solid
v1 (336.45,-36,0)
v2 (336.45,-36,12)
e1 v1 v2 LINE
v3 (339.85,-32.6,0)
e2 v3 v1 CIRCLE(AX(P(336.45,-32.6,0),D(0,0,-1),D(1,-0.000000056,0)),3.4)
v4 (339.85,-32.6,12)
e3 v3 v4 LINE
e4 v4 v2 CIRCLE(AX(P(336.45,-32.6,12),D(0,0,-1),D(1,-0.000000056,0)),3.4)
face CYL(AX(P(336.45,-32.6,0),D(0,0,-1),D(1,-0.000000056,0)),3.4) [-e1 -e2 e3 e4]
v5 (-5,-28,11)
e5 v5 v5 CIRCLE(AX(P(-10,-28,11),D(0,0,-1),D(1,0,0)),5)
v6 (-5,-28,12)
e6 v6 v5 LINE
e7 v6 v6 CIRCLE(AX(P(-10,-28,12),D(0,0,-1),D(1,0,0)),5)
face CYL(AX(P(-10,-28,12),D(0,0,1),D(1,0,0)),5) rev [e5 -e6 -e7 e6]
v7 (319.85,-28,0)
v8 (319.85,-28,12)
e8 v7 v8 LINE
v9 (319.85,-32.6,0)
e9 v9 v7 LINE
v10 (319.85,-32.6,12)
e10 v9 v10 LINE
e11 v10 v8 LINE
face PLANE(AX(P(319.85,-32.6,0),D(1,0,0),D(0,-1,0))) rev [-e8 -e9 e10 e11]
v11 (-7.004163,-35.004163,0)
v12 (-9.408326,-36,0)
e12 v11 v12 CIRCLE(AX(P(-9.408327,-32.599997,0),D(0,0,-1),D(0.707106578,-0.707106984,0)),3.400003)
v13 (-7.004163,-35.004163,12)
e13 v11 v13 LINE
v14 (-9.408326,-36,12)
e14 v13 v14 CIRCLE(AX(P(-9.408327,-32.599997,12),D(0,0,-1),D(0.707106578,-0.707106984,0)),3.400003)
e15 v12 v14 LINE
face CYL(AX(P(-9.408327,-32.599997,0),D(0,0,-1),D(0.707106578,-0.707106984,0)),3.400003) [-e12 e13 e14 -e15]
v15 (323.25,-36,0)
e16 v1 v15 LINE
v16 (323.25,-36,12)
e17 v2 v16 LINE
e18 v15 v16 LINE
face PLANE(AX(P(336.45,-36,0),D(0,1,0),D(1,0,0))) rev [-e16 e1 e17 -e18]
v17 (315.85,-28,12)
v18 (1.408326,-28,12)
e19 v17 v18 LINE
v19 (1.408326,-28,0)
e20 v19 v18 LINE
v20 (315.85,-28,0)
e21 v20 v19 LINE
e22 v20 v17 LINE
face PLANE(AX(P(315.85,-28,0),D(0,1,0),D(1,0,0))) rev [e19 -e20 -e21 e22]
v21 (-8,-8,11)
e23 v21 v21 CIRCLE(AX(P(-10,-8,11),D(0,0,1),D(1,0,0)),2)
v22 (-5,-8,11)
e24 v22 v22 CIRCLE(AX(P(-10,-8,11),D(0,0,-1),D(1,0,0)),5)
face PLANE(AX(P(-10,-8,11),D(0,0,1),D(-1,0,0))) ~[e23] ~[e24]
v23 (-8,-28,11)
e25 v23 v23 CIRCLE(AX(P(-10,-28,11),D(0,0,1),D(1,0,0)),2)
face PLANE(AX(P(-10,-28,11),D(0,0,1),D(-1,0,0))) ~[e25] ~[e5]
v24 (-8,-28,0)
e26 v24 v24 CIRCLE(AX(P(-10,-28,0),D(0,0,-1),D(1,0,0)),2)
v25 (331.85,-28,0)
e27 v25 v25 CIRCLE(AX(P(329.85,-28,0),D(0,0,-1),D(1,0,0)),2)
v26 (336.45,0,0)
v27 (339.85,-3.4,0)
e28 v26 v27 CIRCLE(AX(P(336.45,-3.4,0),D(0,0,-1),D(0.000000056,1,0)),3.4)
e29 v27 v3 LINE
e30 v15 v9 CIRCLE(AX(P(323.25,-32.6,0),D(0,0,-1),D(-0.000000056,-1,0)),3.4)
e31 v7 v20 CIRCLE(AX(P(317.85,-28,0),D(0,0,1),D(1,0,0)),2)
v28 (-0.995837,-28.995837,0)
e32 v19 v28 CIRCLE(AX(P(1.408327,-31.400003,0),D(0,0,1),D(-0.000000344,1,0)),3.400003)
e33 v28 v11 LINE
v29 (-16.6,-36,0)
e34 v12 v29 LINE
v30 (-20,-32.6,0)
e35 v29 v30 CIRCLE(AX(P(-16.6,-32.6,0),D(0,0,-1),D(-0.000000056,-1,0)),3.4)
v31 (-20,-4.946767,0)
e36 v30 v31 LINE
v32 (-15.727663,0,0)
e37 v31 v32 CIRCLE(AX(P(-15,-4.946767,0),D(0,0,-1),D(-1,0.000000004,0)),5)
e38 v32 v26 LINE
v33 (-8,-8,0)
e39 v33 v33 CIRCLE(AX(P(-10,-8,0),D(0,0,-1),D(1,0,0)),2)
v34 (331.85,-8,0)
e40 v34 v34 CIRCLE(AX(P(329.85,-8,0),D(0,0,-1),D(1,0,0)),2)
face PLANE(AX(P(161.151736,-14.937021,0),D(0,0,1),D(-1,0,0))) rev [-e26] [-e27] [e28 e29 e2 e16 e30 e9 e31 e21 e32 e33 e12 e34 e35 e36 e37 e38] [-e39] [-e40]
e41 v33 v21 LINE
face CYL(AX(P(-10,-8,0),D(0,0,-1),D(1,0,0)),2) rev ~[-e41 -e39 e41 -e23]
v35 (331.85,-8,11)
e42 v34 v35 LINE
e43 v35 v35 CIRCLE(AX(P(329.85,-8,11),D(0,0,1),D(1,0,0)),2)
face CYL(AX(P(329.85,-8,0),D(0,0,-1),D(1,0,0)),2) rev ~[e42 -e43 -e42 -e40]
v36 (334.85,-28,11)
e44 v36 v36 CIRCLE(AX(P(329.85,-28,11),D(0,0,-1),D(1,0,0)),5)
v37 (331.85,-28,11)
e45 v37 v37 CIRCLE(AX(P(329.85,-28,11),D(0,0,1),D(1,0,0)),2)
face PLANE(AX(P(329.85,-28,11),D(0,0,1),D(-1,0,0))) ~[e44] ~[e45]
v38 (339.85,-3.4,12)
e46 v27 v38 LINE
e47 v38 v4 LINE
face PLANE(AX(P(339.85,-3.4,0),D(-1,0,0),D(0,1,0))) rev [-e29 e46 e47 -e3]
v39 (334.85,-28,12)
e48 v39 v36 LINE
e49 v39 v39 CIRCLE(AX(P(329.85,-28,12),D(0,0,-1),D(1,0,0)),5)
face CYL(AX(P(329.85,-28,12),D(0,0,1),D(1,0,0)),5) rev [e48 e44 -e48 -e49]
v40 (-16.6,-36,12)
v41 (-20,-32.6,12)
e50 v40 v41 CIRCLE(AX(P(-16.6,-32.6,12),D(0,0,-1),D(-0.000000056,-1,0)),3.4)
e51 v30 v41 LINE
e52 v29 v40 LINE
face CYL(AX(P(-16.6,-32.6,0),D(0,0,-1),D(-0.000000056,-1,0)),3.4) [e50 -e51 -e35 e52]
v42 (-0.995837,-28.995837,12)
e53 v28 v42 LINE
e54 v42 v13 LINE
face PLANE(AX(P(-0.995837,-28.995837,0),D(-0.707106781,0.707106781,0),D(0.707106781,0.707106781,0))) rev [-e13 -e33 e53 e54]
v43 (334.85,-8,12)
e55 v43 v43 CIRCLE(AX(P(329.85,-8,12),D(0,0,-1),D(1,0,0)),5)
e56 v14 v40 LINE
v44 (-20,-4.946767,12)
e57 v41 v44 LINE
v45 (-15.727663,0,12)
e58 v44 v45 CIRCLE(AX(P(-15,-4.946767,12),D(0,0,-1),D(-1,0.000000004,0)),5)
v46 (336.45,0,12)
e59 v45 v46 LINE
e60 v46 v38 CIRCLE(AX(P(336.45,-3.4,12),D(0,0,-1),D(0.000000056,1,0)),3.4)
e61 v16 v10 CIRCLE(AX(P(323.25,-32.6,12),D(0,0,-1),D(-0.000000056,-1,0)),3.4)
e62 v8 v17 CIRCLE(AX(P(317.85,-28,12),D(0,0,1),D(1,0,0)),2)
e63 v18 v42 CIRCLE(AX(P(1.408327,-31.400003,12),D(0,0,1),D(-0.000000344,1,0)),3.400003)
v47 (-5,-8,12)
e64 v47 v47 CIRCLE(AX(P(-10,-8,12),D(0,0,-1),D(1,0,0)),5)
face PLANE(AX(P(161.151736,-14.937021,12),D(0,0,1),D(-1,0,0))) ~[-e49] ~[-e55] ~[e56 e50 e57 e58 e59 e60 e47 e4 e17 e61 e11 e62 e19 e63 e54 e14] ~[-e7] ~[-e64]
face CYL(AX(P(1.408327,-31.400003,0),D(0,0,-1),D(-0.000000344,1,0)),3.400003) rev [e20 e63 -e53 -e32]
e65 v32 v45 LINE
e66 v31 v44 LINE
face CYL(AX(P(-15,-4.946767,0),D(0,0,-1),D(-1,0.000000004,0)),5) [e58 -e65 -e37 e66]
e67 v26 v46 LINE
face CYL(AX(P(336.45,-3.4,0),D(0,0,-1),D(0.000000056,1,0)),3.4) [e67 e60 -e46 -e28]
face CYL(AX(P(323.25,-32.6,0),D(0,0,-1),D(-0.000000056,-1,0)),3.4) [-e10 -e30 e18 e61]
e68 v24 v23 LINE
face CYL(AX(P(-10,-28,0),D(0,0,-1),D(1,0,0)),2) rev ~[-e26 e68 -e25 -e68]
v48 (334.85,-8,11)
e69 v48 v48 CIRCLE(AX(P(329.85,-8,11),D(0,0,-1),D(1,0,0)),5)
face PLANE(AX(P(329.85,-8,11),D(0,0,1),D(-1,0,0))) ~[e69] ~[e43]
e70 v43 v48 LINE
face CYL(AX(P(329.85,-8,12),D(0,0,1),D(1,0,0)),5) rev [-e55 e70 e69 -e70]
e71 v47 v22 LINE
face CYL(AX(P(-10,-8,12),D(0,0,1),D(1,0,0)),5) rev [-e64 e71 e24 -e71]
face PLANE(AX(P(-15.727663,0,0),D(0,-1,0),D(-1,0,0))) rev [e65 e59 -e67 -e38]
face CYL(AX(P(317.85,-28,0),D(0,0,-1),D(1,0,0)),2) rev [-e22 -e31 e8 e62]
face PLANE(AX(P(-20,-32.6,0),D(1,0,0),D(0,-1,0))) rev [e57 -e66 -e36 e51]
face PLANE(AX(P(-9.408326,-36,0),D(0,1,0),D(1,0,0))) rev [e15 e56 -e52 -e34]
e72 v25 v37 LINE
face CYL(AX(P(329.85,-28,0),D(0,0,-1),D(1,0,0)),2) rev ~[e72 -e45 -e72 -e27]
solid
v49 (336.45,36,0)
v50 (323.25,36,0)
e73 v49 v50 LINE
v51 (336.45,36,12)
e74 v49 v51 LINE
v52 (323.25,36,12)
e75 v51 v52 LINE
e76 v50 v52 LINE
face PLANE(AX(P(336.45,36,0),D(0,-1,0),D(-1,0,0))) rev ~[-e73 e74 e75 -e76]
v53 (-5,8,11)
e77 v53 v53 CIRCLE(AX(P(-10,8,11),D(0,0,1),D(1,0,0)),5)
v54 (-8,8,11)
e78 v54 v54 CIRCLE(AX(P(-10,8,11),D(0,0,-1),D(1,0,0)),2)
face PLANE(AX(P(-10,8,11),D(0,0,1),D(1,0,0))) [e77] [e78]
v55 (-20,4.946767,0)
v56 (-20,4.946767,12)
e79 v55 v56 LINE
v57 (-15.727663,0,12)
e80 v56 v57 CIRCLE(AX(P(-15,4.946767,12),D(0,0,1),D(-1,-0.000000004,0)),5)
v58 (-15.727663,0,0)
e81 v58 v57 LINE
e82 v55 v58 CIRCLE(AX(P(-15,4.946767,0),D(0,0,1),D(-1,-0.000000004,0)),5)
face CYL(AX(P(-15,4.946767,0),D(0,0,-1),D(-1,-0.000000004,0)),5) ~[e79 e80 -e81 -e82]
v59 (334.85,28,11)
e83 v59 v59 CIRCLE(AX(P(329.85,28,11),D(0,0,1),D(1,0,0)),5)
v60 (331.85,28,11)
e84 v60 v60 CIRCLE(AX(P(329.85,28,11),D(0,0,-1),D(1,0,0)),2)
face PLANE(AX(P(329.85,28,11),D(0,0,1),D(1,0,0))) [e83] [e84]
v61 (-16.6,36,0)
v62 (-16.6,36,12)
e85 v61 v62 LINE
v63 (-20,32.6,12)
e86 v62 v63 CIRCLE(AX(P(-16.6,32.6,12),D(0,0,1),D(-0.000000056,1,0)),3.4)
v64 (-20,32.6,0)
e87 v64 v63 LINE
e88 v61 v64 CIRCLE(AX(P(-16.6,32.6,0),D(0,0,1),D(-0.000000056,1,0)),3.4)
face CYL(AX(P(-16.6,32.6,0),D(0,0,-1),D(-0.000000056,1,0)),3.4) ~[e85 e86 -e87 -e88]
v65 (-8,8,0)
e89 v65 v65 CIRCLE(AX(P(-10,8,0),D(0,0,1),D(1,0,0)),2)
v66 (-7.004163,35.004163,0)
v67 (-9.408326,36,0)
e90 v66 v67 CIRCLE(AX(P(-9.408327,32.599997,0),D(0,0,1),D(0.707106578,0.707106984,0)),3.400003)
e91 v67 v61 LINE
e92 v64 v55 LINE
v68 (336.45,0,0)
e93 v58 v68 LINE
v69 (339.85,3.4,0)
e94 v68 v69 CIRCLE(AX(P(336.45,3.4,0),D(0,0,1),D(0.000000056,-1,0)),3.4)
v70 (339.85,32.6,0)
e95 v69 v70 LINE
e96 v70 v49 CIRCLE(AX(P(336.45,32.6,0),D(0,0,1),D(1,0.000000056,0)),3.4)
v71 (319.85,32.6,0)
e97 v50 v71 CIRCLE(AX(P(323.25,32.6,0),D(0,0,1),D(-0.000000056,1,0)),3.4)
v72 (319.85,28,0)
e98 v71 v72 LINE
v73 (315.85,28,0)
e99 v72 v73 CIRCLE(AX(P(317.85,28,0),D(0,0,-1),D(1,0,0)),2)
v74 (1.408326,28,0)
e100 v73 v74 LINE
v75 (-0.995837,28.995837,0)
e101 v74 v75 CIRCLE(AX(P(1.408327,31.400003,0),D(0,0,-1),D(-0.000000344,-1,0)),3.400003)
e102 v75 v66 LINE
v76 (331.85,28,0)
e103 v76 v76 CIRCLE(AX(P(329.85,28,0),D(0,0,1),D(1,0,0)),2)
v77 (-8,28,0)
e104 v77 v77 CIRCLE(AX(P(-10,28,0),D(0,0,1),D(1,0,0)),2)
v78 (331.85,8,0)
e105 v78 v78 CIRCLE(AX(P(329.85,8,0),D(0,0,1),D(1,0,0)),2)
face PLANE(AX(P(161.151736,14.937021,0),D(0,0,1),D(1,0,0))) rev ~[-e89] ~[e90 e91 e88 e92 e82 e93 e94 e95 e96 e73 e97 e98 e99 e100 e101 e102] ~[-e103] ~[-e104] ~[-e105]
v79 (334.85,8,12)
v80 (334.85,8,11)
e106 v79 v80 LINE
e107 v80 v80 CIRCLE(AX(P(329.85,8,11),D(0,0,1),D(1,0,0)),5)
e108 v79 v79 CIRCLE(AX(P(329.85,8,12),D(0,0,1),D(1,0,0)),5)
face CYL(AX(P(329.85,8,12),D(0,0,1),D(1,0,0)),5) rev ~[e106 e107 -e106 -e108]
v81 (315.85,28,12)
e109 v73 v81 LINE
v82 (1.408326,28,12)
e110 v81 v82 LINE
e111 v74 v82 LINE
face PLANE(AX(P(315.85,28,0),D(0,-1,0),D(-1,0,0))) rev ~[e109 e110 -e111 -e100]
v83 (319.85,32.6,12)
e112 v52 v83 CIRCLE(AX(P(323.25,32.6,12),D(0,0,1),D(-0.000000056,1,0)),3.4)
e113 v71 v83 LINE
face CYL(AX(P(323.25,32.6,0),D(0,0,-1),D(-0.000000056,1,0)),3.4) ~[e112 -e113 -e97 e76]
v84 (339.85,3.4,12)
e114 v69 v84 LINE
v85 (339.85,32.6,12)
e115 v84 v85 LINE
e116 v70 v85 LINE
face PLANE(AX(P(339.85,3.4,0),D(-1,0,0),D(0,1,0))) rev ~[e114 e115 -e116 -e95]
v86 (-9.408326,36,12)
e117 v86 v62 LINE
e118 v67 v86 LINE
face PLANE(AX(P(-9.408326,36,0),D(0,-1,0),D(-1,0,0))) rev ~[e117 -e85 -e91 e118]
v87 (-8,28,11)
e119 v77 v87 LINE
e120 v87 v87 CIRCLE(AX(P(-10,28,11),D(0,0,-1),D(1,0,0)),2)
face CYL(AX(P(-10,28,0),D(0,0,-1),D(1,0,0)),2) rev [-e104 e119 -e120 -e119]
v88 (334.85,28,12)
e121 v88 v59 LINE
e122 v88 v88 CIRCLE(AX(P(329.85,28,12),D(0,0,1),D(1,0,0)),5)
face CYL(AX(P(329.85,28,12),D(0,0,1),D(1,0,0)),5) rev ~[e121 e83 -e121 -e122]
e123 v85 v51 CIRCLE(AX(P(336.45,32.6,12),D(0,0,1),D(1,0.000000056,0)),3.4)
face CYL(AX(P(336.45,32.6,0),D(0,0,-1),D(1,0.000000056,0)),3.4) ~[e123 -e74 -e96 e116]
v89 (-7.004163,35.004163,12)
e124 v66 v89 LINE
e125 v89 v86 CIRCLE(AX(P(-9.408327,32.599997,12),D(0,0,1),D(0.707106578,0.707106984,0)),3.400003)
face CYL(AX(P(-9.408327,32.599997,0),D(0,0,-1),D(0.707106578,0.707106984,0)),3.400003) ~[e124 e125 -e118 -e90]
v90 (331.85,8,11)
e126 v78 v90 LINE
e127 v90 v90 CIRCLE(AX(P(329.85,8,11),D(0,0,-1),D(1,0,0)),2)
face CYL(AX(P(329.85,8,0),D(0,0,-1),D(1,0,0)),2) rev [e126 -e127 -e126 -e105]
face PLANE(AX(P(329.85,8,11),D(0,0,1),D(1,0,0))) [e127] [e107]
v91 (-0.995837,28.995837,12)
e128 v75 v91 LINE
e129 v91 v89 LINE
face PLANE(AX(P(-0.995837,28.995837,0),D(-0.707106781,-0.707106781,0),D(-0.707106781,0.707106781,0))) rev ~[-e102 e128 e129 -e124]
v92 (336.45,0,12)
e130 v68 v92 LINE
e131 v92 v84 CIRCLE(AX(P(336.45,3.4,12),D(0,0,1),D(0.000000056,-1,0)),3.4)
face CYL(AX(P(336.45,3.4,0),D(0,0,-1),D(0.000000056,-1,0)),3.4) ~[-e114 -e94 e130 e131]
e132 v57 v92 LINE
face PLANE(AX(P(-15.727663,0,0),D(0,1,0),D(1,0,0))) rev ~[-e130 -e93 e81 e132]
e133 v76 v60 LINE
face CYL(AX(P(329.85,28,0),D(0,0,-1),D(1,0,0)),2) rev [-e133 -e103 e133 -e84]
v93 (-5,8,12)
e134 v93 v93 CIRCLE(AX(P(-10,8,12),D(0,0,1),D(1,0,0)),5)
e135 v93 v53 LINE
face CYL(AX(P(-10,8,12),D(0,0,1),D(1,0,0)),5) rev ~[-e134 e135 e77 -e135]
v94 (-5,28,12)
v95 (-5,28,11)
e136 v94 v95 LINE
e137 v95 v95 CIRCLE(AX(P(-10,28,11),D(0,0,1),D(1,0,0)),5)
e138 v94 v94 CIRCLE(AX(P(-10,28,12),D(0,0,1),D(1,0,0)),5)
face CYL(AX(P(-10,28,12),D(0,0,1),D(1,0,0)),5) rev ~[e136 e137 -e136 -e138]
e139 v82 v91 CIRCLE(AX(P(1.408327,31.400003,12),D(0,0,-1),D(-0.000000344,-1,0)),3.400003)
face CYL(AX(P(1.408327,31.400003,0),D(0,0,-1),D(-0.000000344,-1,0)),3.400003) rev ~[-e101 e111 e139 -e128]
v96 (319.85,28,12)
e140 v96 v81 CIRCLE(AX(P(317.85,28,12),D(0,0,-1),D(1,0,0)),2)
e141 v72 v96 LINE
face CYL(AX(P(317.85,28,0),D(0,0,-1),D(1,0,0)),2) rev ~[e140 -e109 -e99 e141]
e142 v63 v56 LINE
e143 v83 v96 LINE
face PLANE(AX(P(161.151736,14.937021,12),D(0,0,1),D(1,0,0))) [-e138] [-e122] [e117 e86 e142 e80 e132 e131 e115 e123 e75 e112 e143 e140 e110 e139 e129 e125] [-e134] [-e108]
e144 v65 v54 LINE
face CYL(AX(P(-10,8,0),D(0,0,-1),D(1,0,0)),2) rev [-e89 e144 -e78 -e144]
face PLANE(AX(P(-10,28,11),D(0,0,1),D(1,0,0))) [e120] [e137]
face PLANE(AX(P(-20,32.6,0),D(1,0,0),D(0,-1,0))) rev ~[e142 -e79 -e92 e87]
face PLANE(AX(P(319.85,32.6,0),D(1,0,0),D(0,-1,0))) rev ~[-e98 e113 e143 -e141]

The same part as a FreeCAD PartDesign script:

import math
import FreeCAD as App
import Part
import Sketcher
Q = App.Units.Quantity

doc = App.newDocument("Part")
body = doc.addObject("PartDesign::Body", "Body")

sketch1 = doc.addObject("Sketcher::SketchObject", "Sketch")
body.addObject(sketch1)
sketch1.AttachmentSupport = (doc.XY_Plane, [""])
sketch1.MapMode = "FlatFace"
sketch1.addGeometry([
    Part.LineSegment(App.Vector(315.9, 28, 0), App.Vector(1.4, 28, 0)),
    Part.ArcOfCircle(Part.Circle(App.Vector(1.4, 31.4, 0), App.Vector(0, 0, 1), 3.4), math.radians(-135), math.radians(-90)),
    Part.LineSegment(App.Vector(-1, 29, 0), App.Vector(-7, 35, 0)),
    Part.ArcOfCircle(Part.Circle(App.Vector(-9.4, 32.6, 0), App.Vector(0, 0, 1), 3.4), math.radians(45), math.radians(90)),
    Part.LineSegment(App.Vector(-9.4, 36, 0), App.Vector(-16.6, 36, 0)),
    Part.ArcOfCircle(Part.Circle(App.Vector(-16.6, 32.6, 0), App.Vector(0, 0, 1), 3.4), math.radians(90), math.radians(180)),
    Part.LineSegment(App.Vector(-20, 32.6, 0), App.Vector(-20, 4.9, 0)),
    Part.ArcOfCircle(Part.Circle(App.Vector(-15, 4.9, 0), App.Vector(0, 0, 1), 5), math.radians(-180), math.radians(-98)),
    Part.LineSegment(App.Vector(-15.7, 0, 0), App.Vector(336.4, 0, 0)),
    Part.ArcOfCircle(Part.Circle(App.Vector(336.4, 3.4, 0), App.Vector(0, 0, 1), 3.4), math.radians(-90), math.radians(0)),
    Part.LineSegment(App.Vector(339.9, 3.4, 0), App.Vector(339.9, 32.6, 0)),
    Part.ArcOfCircle(Part.Circle(App.Vector(336.4, 32.6, 0), App.Vector(0, 0, 1), 3.4), math.radians(0), math.radians(90)),
    Part.LineSegment(App.Vector(336.4, 36, 0), App.Vector(323.2, 36, 0)),
    Part.ArcOfCircle(Part.Circle(App.Vector(323.3, 32.6, 0), App.Vector(0, 0, 1), 3.4), math.radians(90), math.radians(180)),
    Part.LineSegment(App.Vector(319.9, 32.6, 0), App.Vector(319.9, 28, 0)),
    Part.ArcOfCircle(Part.Circle(App.Vector(317.9, 28, 0), App.Vector(0, 0, 1), 2), math.radians(180), math.radians(360)),
    Part.Circle(App.Vector(-10, 8, 0), App.Vector(0, 0, 1), 2),
    Part.Circle(App.Vector(329.9, 8, 0), App.Vector(0, 0, 1), 2),
    Part.Circle(App.Vector(-10, 28, 0), App.Vector(0, 0, 1), 2),
    Part.Circle(App.Vector(329.9, 28, 0), App.Vector(0, 0, 1), 2),
], False)
sketch1.addConstraint([
    Sketcher.Constraint("Tangent", 0, 2, 1, 2),
    Sketcher.Constraint("Tangent", 1, 1, 2, 1),
    Sketcher.Constraint("Tangent", 2, 2, 3, 1),
    Sketcher.Constraint("Tangent", 3, 2, 4, 1),
    Sketcher.Constraint("Tangent", 4, 2, 5, 1),
    Sketcher.Constraint("Tangent", 5, 2, 6, 1),
    Sketcher.Constraint("Tangent", 6, 2, 7, 1),
    Sketcher.Constraint("Coincident", 7, 2, 8, 1),
    Sketcher.Constraint("Tangent", 8, 2, 9, 1),
    Sketcher.Constraint("Tangent", 9, 2, 10, 1),
    Sketcher.Constraint("Tangent", 10, 2, 11, 1),
    Sketcher.Constraint("Tangent", 11, 2, 12, 1),
    Sketcher.Constraint("Tangent", 12, 2, 13, 1),
    Sketcher.Constraint("Tangent", 13, 2, 14, 1),
    Sketcher.Constraint("Tangent", 14, 2, 15, 2),
    Sketcher.Constraint("Coincident", 15, 1, 0, 1),
    Sketcher.Constraint("Horizontal", 0),
    Sketcher.Constraint("Horizontal", 4),
    Sketcher.Constraint("Vertical", 6),
    Sketcher.Constraint("Horizontal", 8),
    Sketcher.Constraint("Vertical", 10),
    Sketcher.Constraint("Horizontal", 12),
    Sketcher.Constraint("Vertical", 14),
    Sketcher.Constraint("Equal", 1, 3),
    Sketcher.Constraint("Equal", 5, 9),
    Sketcher.Constraint("Equal", 9, 11),
    Sketcher.Constraint("Equal", 11, 13),
    Sketcher.Constraint("Equal", 15, 16),
    Sketcher.Constraint("Equal", 16, 17),
    Sketcher.Constraint("Equal", 17, 18),
    Sketcher.Constraint("Equal", 18, 19),
    Sketcher.Constraint("PointOnObject", 7, 2, -1),
    Sketcher.Constraint("Horizontal", 5, 3, 11, 3),
    Sketcher.Constraint("Horizontal", 16, 3, 17, 3),
    Sketcher.Constraint("Horizontal", 15, 3, 18, 3),
    Sketcher.Constraint("Horizontal", 18, 3, 19, 3),
    Sketcher.Constraint("Horizontal", 19, 3, 0, 2),
    Sketcher.Constraint("Vertical", 16, 3, 18, 3),
    Sketcher.Constraint("Vertical", 17, 3, 19, 3),
    Sketcher.Constraint("Diameter", 16, Q("4 mm")),
    Sketcher.Constraint("Radius", 7, Q("5 mm")),
    Sketcher.Constraint("Radius", 5, Q("3.4 mm")),
    Sketcher.Constraint("Angle", 2, Q("135 deg")),
    Sketcher.Constraint("DistanceX", 12, 2, 12, 1, Q("13.2 mm")),
    Sketcher.Constraint("DistanceY", 10, 1, 10, 2, Q("29.2 mm")),
    Sketcher.Constraint("DistanceY", 14, 2, 14, 1, Q("4.6 mm")),
    Sketcher.Constraint("DistanceX", 7, 3, -1, 1, Q("15 mm")),
    Sketcher.Constraint("DistanceX", 16, 3, -1, 1, Q("10 mm")),
    Sketcher.Constraint("DistanceY", -1, 1, 16, 3, Q("8 mm")),
    Sketcher.Constraint("DistanceX", 15, 3, 17, 3, Q("12 mm")),
    Sketcher.Constraint("DistanceX", -1, 1, 9, 3, Q("336.45 mm")),
    Sketcher.Constraint("Radius", 1, Q("3.400003 mm")),
    Sketcher.Constraint("DistanceX", 0, 2, 0, 1, Q("314.441674 mm")),
    Sketcher.Constraint("DistanceX", 8, 1, 8, 2, Q("352.177663 mm")),
])
pad1 = doc.addObject("PartDesign::Pad", "Pad")
body.addObject(pad1)
pad1.Profile = sketch1
pad1.Length = 12

sketch2 = doc.addObject("Sketcher::SketchObject", "Sketch001")
body.addObject(sketch2)
sketch2.AttachmentSupport = (doc.XY_Plane, [""])
sketch2.MapMode = "FlatFace"
sketch2.AttachmentOffset = App.Placement(App.Vector(0, 0, 12), App.Rotation())
sketch2.addGeometry([
    Part.Circle(App.Vector(330, 28, 0), App.Vector(0, 0, 1), 5),
    Part.Circle(App.Vector(330, 8, 0), App.Vector(0, 0, 1), 5),
    Part.Circle(App.Vector(-10, 8, 0), App.Vector(0, 0, 1), 5),
    Part.Circle(App.Vector(-10, 28, 0), App.Vector(0, 0, 1), 5),
], False)
sketch2.addConstraint([
    Sketcher.Constraint("Equal", 0, 1),
    Sketcher.Constraint("Equal", 1, 2),
    Sketcher.Constraint("Equal", 2, 3),
    Sketcher.Constraint("Horizontal", 1, 3, 2, 3),
    Sketcher.Constraint("Horizontal", 0, 3, 3, 3),
    Sketcher.Constraint("Vertical", 0, 3, 1, 3),
    Sketcher.Constraint("Vertical", 2, 3, 3, 3),
    Sketcher.Constraint("Diameter", 0, Q("10 mm")),
    Sketcher.Constraint("DistanceY", -1, 1, 0, 3, Q("28 mm")),
    Sketcher.Constraint("DistanceY", -1, 1, 1, 3, Q("8 mm")),
    Sketcher.Constraint("DistanceX", 2, 3, -1, 1, Q("10 mm")),
    Sketcher.Constraint("DistanceX", -1, 1, 0, 3, Q("329.85 mm")),
])
pocket1 = doc.addObject("PartDesign::Pocket", "Pocket")
body.addObject(pocket1)
pocket1.Profile = sketch2
pocket1.Length = 1
body2 = doc.addObject("PartDesign::Body", "Body001")
doc.recompute()

mirroring = doc.addObject("Part::Mirroring", "Mirroring")
mirroring.Source = body
mirroring.Base = App.Vector(0, 0, 0)
mirroring.Normal = App.Vector(0, -1, 0)
body2.BaseFeature = mirroring
doc.recompute()
mirroring.Visibility = False

doc.recompute()
